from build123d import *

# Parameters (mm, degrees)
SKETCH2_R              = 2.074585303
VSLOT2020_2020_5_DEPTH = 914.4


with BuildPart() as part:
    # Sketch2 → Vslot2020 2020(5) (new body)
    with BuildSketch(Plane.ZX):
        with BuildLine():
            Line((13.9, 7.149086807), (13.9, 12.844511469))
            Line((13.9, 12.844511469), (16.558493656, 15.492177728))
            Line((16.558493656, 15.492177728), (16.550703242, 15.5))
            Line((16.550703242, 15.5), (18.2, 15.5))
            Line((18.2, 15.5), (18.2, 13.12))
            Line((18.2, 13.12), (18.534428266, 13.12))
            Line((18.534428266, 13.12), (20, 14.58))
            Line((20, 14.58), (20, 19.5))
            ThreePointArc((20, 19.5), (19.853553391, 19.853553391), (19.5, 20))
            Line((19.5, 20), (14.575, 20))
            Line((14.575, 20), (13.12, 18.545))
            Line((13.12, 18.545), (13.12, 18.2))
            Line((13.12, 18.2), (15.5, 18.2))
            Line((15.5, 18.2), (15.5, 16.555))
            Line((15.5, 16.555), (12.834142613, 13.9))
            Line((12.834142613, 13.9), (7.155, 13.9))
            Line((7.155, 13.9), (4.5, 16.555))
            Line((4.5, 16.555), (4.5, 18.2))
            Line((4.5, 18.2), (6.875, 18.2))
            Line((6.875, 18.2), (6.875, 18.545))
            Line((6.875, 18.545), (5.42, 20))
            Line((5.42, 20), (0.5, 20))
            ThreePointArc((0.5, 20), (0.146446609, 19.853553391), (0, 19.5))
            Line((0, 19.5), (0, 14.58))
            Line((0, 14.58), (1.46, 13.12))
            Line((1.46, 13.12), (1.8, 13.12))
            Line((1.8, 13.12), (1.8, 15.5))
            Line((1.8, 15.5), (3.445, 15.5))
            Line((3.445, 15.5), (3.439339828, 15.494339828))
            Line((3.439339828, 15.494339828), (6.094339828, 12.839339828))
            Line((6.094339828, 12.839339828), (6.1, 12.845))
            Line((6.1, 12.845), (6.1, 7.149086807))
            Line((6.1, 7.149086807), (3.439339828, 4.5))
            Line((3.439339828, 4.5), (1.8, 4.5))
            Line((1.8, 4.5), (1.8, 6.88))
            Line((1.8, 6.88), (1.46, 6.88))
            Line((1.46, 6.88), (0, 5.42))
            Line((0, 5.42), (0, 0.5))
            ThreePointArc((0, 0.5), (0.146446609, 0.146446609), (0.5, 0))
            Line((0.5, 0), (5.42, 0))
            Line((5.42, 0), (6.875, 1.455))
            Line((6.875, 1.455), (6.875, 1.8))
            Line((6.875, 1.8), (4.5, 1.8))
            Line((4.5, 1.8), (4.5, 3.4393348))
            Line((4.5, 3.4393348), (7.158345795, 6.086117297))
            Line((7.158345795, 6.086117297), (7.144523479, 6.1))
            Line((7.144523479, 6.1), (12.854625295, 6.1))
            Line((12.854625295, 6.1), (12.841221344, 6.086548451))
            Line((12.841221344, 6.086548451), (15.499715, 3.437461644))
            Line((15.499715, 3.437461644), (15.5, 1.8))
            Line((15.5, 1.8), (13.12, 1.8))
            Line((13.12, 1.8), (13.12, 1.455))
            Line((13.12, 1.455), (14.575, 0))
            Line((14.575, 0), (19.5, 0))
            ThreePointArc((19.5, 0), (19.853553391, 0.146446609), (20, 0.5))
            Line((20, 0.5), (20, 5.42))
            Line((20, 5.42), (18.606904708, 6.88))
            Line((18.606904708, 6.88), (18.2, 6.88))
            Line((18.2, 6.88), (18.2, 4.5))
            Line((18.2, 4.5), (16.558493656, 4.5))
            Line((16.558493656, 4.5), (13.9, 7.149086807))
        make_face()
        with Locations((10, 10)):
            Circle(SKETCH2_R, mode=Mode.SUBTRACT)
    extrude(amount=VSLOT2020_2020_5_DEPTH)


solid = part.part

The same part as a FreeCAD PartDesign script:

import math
import FreeCAD as App
import Part
import Sketcher

doc = App.newDocument("Part")
body = doc.addObject("PartDesign::Body", "Body")

sketch1 = body.newObject("Sketcher::SketchObject", "Sketch")
sketch1.AttachmentSupport = (doc.getObject("XZ_Plane"), [""])
sketch1.MapMode = "FlatFace"
sketch1.addGeometry([
    Part.LineSegment(App.Vector(7.149087, 13.9, 0), App.Vector(12.844511, 13.9, 0)),
    Part.LineSegment(App.Vector(12.844511, 13.9, 0), App.Vector(15.492178, 16.558494, 0)),
    Part.LineSegment(App.Vector(15.492178, 16.558494, 0), App.Vector(15.5, 16.550703, 0)),
    Part.LineSegment(App.Vector(15.5, 16.550703, 0), App.Vector(15.5, 18.2, 0)),
    Part.LineSegment(App.Vector(15.5, 18.2, 0), App.Vector(13.12, 18.2, 0)),
    Part.LineSegment(App.Vector(13.12, 18.2, 0), App.Vector(13.12, 18.534428, 0)),
    Part.LineSegment(App.Vector(13.12, 18.534428, 0), App.Vector(14.58, 20, 0)),
    Part.LineSegment(App.Vector(14.58, 20, 0), App.Vector(19.5, 20, 0)),
    Part.ArcOfCircle(Part.Circle(App.Vector(19.5, 19.5, 0), App.Vector(0, 0, 1), 0.5), math.radians(0), math.radians(90)),
    Part.LineSegment(App.Vector(20, 19.5, 0), App.Vector(20, 14.575, 0)),
    Part.LineSegment(App.Vector(20, 14.575, 0), App.Vector(18.545, 13.12, 0)),
    Part.LineSegment(App.Vector(18.545, 13.12, 0), App.Vector(18.2, 13.12, 0)),
    Part.LineSegment(App.Vector(18.2, 13.12, 0), App.Vector(18.2, 15.5, 0)),
    Part.LineSegment(App.Vector(18.2, 15.5, 0), App.Vector(16.555, 15.5, 0)),
    Part.LineSegment(App.Vector(16.555, 15.5, 0), App.Vector(13.9, 12.834143, 0)),
    Part.LineSegment(App.Vector(13.9, 12.834143, 0), App.Vector(13.9, 7.155, 0)),
    Part.LineSegment(App.Vector(13.9, 7.155, 0), App.Vector(16.555, 4.5, 0)),
    Part.LineSegment(App.Vector(16.555, 4.5, 0), App.Vector(18.2, 4.5, 0)),
    Part.LineSegment(App.Vector(18.2, 4.5, 0), App.Vector(18.2, 6.875, 0)),
    Part.LineSegment(App.Vector(18.2, 6.875, 0), App.Vector(18.545, 6.875, 0)),
    Part.LineSegment(App.Vector(18.545, 6.875, 0), App.Vector(20, 5.42, 0)),
    Part.LineSegment(App.Vector(20, 5.42, 0), App.Vector(20, 0.5, 0)),
    Part.ArcOfCircle(Part.Circle(App.Vector(19.5, 0.5, 0), App.Vector(0, 0, 1), 0.5), math.radians(-90), math.radians(0)),
    Part.LineSegment(App.Vector(19.5, 0, 0), App.Vector(14.58, 0, 0)),
    Part.LineSegment(App.Vector(14.58, 0, 0), App.Vector(13.12, 1.46, 0)),
    Part.LineSegment(App.Vector(13.12, 1.46, 0), App.Vector(13.12, 1.8, 0)),
    Part.LineSegment(App.Vector(13.12, 1.8, 0), App.Vector(15.5, 1.8, 0)),
    Part.LineSegment(App.Vector(15.5, 1.8, 0), App.Vector(15.5, 3.445, 0)),
    Part.LineSegment(App.Vector(15.5, 3.445, 0), App.Vector(15.49434, 3.43934, 0)),
    Part.LineSegment(App.Vector(15.49434, 3.43934, 0), App.Vector(12.83934, 6.09434, 0)),
    Part.LineSegment(App.Vector(12.83934, 6.09434, 0), App.Vector(12.845, 6.1, 0)),
    Part.LineSegment(App.Vector(12.845, 6.1, 0), App.Vector(7.149087, 6.1, 0)),
    Part.LineSegment(App.Vector(7.149087, 6.1, 0), App.Vector(4.5, 3.43934, 0)),
    Part.LineSegment(App.Vector(4.5, 3.43934, 0), App.Vector(4.5, 1.8, 0)),
    Part.LineSegment(App.Vector(4.5, 1.8, 0), App.Vector(6.88, 1.8, 0)),
    Part.LineSegment(App.Vector(6.88, 1.8, 0), App.Vector(6.88, 1.46, 0)),
    Part.LineSegment(App.Vector(6.88, 1.46, 0), App.Vector(5.42, 0, 0)),
    Part.LineSegment(App.Vector(5.42, 0, 0), App.Vector(0.5, 0, 0)),
    Part.ArcOfCircle(Part.Circle(App.Vector(0.5, 0.5, 0), App.Vector(0, 0, 1), 0.5), math.radians(180), math.radians(270)),
    Part.LineSegment(App.Vector(0, 0.5, 0), App.Vector(0, 5.42, 0)),
    Part.LineSegment(App.Vector(0, 5.42, 0), App.Vector(1.455, 6.875, 0)),
    Part.LineSegment(App.Vector(1.455, 6.875, 0), App.Vector(1.8, 6.875, 0)),
    Part.LineSegment(App.Vector(1.8, 6.875, 0), App.Vector(1.8, 4.5, 0)),
    Part.LineSegment(App.Vector(1.8, 4.5, 0), App.Vector(3.439335, 4.5, 0)),
    Part.LineSegment(App.Vector(3.439335, 4.5, 0), App.Vector(6.086117, 7.158346, 0)),
    Part.LineSegment(App.Vector(6.086117, 7.158346, 0), App.Vector(6.1, 7.144523, 0)),
    Part.LineSegment(App.Vector(6.1, 7.144523, 0), App.Vector(6.1, 12.854625, 0)),
    Part.LineSegment(App.Vector(6.1, 12.854625, 0), App.Vector(6.086548, 12.841221, 0)),
    Part.LineSegment(App.Vector(6.086548, 12.841221, 0), App.Vector(3.437462, 15.499715, 0)),
    Part.LineSegment(App.Vector(3.437462, 15.499715, 0), App.Vector(1.8, 15.5, 0)),
    Part.LineSegment(App.Vector(1.8, 15.5, 0), App.Vector(1.8, 13.12, 0)),
    Part.LineSegment(App.Vector(1.8, 13.12, 0), App.Vector(1.455, 13.12, 0)),
    Part.LineSegment(App.Vector(1.455, 13.12, 0), App.Vector(0, 14.575, 0)),
    Part.LineSegment(App.Vector(0, 14.575, 0), App.Vector(0, 19.5, 0)),
    Part.ArcOfCircle(Part.Circle(App.Vector(0.5, 19.5, 0), App.Vector(0, 0, 1), 0.5), math.radians(90), math.radians(180)),
    Part.LineSegment(App.Vector(0.5, 20, 0), App.Vector(5.42, 20, 0)),
    Part.LineSegment(App.Vector(5.42, 20, 0), App.Vector(6.88, 18.606905, 0)),
    Part.LineSegment(App.Vector(6.88, 18.606905, 0), App.Vector(6.88, 18.2, 0)),
    Part.LineSegment(App.Vector(6.88, 18.2, 0), App.Vector(4.5, 18.2, 0)),
    Part.LineSegment(App.Vector(4.5, 18.2, 0), App.Vector(4.5, 16.558494, 0)),
    Part.LineSegment(App.Vector(4.5, 16.558494, 0), App.Vector(7.149087, 13.9, 0)),
    Part.Circle(App.Vector(10, 10, 0), App.Vector(0, 0, 1), 2.074585),
], False)
sketch1.addConstraint([
    Sketcher.Constraint("Coincident", 0, 2, 1, 1),
    Sketcher.Constraint("Coincident", 1, 2, 2, 1),
    Sketcher.Constraint("Coincident", 2, 2, 3, 1),
    Sketcher.Constraint("Coincident", 3, 2, 4, 1),
    Sketcher.Constraint("Coincident", 4, 2, 5, 1),
    Sketcher.Constraint("Coincident", 5, 2, 6, 1),
    Sketcher.Constraint("Coincident", 6, 2, 7, 1),
    Sketcher.Constraint("Tangent", 7, 2, 8, 2),
    Sketcher.Constraint("Tangent", 8, 1, 9, 1),
    Sketcher.Constraint("Coincident", 9, 2, 10, 1),
    Sketcher.Constraint("Coincident", 10, 2, 11, 1),
    Sketcher.Constraint("Coincident", 11, 2, 12, 1),
    Sketcher.Constraint("Coincident", 12, 2, 13, 1),
    Sketcher.Constraint("Coincident", 13, 2, 14, 1),
    Sketcher.Constraint("Coincident", 14, 2, 15, 1),
    Sketcher.Constraint("Coincident", 15, 2, 16, 1),
    Sketcher.Constraint("Coincident", 16, 2, 17, 1),
    Sketcher.Constraint("Coincident", 17, 2, 18, 1),
    Sketcher.Constraint("Coincident", 18, 2, 19, 1),
    Sketcher.Constraint("Coincident", 19, 2, 20, 1),
    Sketcher.Constraint("Coincident", 20, 2, 21, 1),
    Sketcher.Constraint("Tangent", 21, 2, 22, 2),
    Sketcher.Constraint("Tangent", 22, 1, 23, 1),
    Sketcher.Constraint("Coincident", 23, 2, 24, 1),
    Sketcher.Constraint("Coincident", 24, 2, 25, 1),
    Sketcher.Constraint("Coincident", 25, 2, 26, 1),
    Sketcher.Constraint("Coincident", 26, 2, 27, 1),
    Sketcher.Constraint("Coincident", 27, 2, 28, 1),
    Sketcher.Constraint("Coincident", 28, 2, 29, 1),
    Sketcher.Constraint("Coincident", 29, 2, 30, 1),
    Sketcher.Constraint("Coincident", 30, 2, 31, 1),
    Sketcher.Constraint("Coincident", 31, 2, 32, 1),
    Sketcher.Constraint("Coincident", 32, 2, 33, 1),
    Sketcher.Constraint("Coincident", 33, 2, 34, 1),
    Sketcher.Constraint("Coincident", 34, 2, 35, 1),
    Sketcher.Constraint("Coincident", 35, 2, 36, 1),
    Sketcher.Constraint("Coincident", 36, 2, 37, 1),
    Sketcher.Constraint("Tangent", 37, 2, 38, 2),
    Sketcher.Constraint("Tangent", 38, 1, 39, 1),
    Sketcher.Constraint("Coincident", 39, 2, 40, 1),
    Sketcher.Constraint("Coincident", 40, 2, 41, 1),
    Sketcher.Constraint("Coincident", 41, 2, 42, 1),
    Sketcher.Constraint("Coincident", 42, 2, 43, 1),
    Sketcher.Constraint("Coincident", 43, 2, 44, 1),
    Sketcher.Constraint("Coincident", 44, 2, 45, 1),
    Sketcher.Constraint("Coincident", 45, 2, 46, 1),
    Sketcher.Constraint("Coincident", 46, 2, 47, 1),
    Sketcher.Constraint("Coincident", 47, 2, 48, 1),
    Sketcher.Constraint("Coincident", 48, 2, 49, 1),
    Sketcher.Constraint("Coincident", 49, 2, 50, 1),
    Sketcher.Constraint("Coincident", 50, 2, 51, 1),
    Sketcher.Constraint("Coincident", 51, 2, 52, 1),
    Sketcher.Constraint("Coincident", 52, 2, 53, 1),
    Sketcher.Constraint("Tangent", 53, 2, 54, 2),
    Sketcher.Constraint("Tangent", 54, 1, 55, 1),
    Sketcher.Constraint("Coincident", 55, 2, 56, 1),
    Sketcher.Constraint("Coincident", 56, 2, 57, 1),
    Sketcher.Constraint("Coincident", 57, 2, 58, 1),
    Sketcher.Constraint("Coincident", 58, 2, 59, 1),
    Sketcher.Constraint("Coincident", 59, 2, 60, 1),
    Sketcher.Constraint("Coincident", 60, 2, 0, 1),
    Sketcher.Constraint("Horizontal", 0),
    Sketcher.Constraint("Vertical", 3),
    Sketcher.Constraint("Horizontal", 4),
    Sketcher.Constraint("Vertical", 5),
    Sketcher.Constraint("Horizontal", 7),
    Sketcher.Constraint("Vertical", 9),
    Sketcher.Constraint("Horizontal", 11),
    Sketcher.Constraint("Vertical", 12),
    Sketcher.Constraint("Horizontal", 13),
    Sketcher.Constraint("Vertical", 15),
    Sketcher.Constraint("Horizontal", 17),
    Sketcher.Constraint("Vertical", 18),
    Sketcher.Constraint("Horizontal", 19),
    Sketcher.Constraint("Vertical", 21),
    Sketcher.Constraint("Horizontal", 23),
    Sketcher.Constraint("Vertical", 25),
    Sketcher.Constraint("Horizontal", 26),
    Sketcher.Constraint("Vertical", 27),
    Sketcher.Constraint("Horizontal", 31),
    Sketcher.Constraint("Vertical", 33),
    Sketcher.Constraint("Horizontal", 34),
    Sketcher.Constraint("Vertical", 35),
    Sketcher.Constraint("Horizontal", 37),
    Sketcher.Constraint("Vertical", 39),
    Sketcher.Constraint("Horizontal", 41),
    Sketcher.Constraint("Vertical", 42),
    Sketcher.Constraint("Horizontal", 43),
    Sketcher.Constraint("Vertical", 46),
    Sketcher.Constraint("Vertical", 50),
    Sketcher.Constraint("Horizontal", 51),
    Sketcher.Constraint("Vertical", 53),
    Sketcher.Constraint("Horizontal", 55),
    Sketcher.Constraint("Vertical", 57),
    Sketcher.Constraint("Horizontal", 58),
    Sketcher.Constraint("Vertical", 59),
    Sketcher.Constraint("Equal", 8, 22),
    Sketcher.Constraint("Equal", 22, 38),
    Sketcher.Constraint("Equal", 38, 54),
    Sketcher.Constraint("PointOnObject", 22, 1, -1),
    Sketcher.Constraint("PointOnObject", 36, 2, -1),
    Sketcher.Constraint("PointOnObject", 38, 1, -2),
    Sketcher.Constraint("PointOnObject", 52, 2, -2),
    Sketcher.Constraint("Perpendicular", 1, 2),
    Sketcher.Constraint("Perpendicular", 2, 14),
    Sketcher.Constraint("Perpendicular", 10, 16),
    Sketcher.Constraint("Parallel", 16, 20),
    Sketcher.Constraint("Parallel", 20, 24),
    Sketcher.Constraint("Perpendicular", 24, 28),
    Sketcher.Constraint("Parallel", 24, 29),
    Sketcher.Constraint("Perpendicular", 29, 30),
    Sketcher.Constraint("Parallel", 30, 36),
    Sketcher.Constraint("Parallel", 36, 40),
    Sketcher.Constraint("Parallel", 32, 44),
    Sketcher.Constraint("Perpendicular", 44, 45),
    Sketcher.Constraint("Perpendicular", 47, 48),
    Sketcher.Constraint("Perpendicular", 40, 52),
    Sketcher.Constraint("Parallel", 48, 60),
    Sketcher.Constraint("Horizontal", 8, 3, 54, 3),
    Sketcher.Constraint("Horizontal", 28, 2, 32, 2),
    Sketcher.Constraint("Horizontal", 26, 2, 33, 2),
    Sketcher.Constraint("Horizontal", 24, 2, 35, 2),
    Sketcher.Constraint("Horizontal", 20, 2, 39, 2),
    Sketcher.Constraint("Horizontal", 19, 2, 40, 2),
    Sketcher.Constraint("Horizontal", 17, 2, 42, 2),
    Sketcher.Constraint("Horizontal", 13, 2, 49, 2),
    Sketcher.Constraint("Horizontal", 11, 2, 50, 2),
    Sketcher.Constraint("Horizontal", 9, 2, 52, 2),
    Sketcher.Constraint("Horizontal", 4, 2, 57, 2),
    Sketcher.Constraint("Horizontal", 1, 2, 59, 2),
    Sketcher.Constraint("Vertical", 8, 3, 22, 3),
    Sketcher.Constraint("Vertical", 13, 2, 16, 2),
    Sketcher.Constraint("Vertical", 12, 2, 17, 2),
    Sketcher.Constraint("Vertical", 10, 2, 19, 2),
    Sketcher.Constraint("Vertical", 6, 2, 23, 2),
    Sketcher.Constraint("Vertical", 5, 2, 24, 2),
    Sketcher.Constraint("Vertical", 3, 2, 26, 2),
    Sketcher.Constraint("Vertical", 42, 2, 49, 2),
    Sketcher.Constraint("Vertical", 40, 2, 51, 2),
    Sketcher.Constraint("Vertical", 36, 2, 55, 2),
    Sketcher.Constraint("Vertical", 35, 2, 56, 2),
    Sketcher.Constraint("Vertical", 33, 2, 58, 2),
    Sketcher.Constraint("Vertical", 31, 2, 60, 2),
    Sketcher.Constraint("Equal", 26, 34),
    Sketcher.Constraint("Equal", 23, 37),
    Sketcher.Constraint("Equal", 19, 41),
    Sketcher.Constraint("Equal", 58, 12),
    Sketcher.Constraint("Equal", 55, 21),
    Sketcher.Constraint("Equal", 17, 27),
    Sketcher.Constraint("Equal", 16, 29),
    Sketcher.Constraint("Equal", 28, 30),
    Sketcher.Constraint("Equal", 48, 60),
    Sketcher.Constraint("Radius", 8, 0.5),
    Sketcher.Constraint("DistanceX", -1, 1, 61, 3, 10.0),
    Sketcher.Constraint("DistanceY", -1, 1, 61, 3, 10.0),
    Sketcher.Constraint("DistanceY", -1, 1, 6, 2, 20.0),
    Sketcher.Constraint("DistanceX", -1, 1, 8, 1, 20.0),
    Sketcher.Constraint("DistanceX", 4, 2, 4, 1, 2.38),
    Sketcher.Constraint("DistanceX", 7, 1, 7, 2, 4.92),
    Sketcher.Constraint("DistanceY", 25, 1, 25, 2, 0.34),
    Sketcher.Constraint("DistanceY", -1, 1, 0, 2, 13.9),
    Sketcher.Constraint("DistanceX", -1, 1, 2, 2, 15.5),
    Sketcher.Constraint("DistanceY", -1, 1, 3, 2, 18.2),
    Sketcher.Constraint("DistanceX", -1, 1, 11, 2, 18.2),
    Sketcher.Constraint("DistanceY", -1, 1, 12, 2, 15.5),
    Sketcher.Constraint("DistanceX", -1, 1, 14, 2, 13.9),
    Sketcher.Constraint("DistanceY", -1, 1, 16, 2, 4.5),
    Sketcher.Constraint("DistanceX", -1, 1, 45, 2, 6.1),
    Sketcher.Constraint("Diameter", 61, 4.149171),
    Sketcher.Constraint("DistanceX", 11, 2, 11, 1, 0.345),
    Sketcher.Constraint("DistanceX", 13, 2, 13, 1, 1.645),
    Sketcher.Constraint("DistanceY", 46, 1, 46, 2, 5.710102),
    Sketcher.Constraint("Distance", 44, 3.751301),
    Sketcher.Constraint("DistanceY", 5, 1, 5, 2, 0.334428),
    Sketcher.Constraint("DistanceY", 33, 2, 33, 1, 1.63934),
    Sketcher.Constraint("Distance", 1, 3.752029),
    Sketcher.Constraint("Distance", 2, 0.01104),
    Sketcher.Constraint("Distance", 45, 0.01959),
    Sketcher.Constraint("Distance", 47, 0.01899),
    Sketcher.Constraint("Distance", 49, 1.637462),
    Sketcher.Constraint("DistanceX", 0, 1, 0, 2, 5.695425),
    Sketcher.Constraint("DistanceY", 57, 2, 57, 1, 0.406905),
])
pad1 = body.newObject("PartDesign::Pad", "Pad")
pad1.Profile = sketch1
pad1.Length = 914.4
pad1.Reversed = True

doc.recompute()
